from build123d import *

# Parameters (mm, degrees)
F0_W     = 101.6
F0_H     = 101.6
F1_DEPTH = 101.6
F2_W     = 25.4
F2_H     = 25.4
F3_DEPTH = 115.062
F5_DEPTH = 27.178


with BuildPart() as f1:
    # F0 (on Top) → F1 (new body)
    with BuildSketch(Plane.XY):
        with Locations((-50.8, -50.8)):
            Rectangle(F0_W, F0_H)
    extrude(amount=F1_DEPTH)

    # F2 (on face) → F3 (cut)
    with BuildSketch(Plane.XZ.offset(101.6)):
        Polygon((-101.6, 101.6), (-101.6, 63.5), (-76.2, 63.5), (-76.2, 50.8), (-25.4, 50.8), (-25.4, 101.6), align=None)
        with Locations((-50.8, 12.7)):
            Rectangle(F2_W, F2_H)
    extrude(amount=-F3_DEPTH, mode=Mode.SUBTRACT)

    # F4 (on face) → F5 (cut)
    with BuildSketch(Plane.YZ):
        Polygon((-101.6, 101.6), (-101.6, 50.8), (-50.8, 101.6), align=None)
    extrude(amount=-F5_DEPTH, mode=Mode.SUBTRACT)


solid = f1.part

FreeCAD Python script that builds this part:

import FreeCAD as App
import Part
import Sketcher
Q = App.Units.Quantity

doc = App.newDocument("Part")
body = doc.addObject("PartDesign::Body", "Body")

# Sketch on XY plane
sketch1 = doc.addObject("Sketcher::SketchObject", "Sketch")
body.addObject(sketch1)
sketch1.AttachmentSupport = (doc.XY_Plane, [""])
sketch1.MapMode = "FlatFace"
sketch1.addGeometry([
    Part.LineSegment(App.Vector(-102, 0, 0), App.Vector(-102, -102, 0)),
    Part.LineSegment(App.Vector(-102, -102, 0), App.Vector(0, -102, 0)),
    Part.LineSegment(App.Vector(0, -102, 0), App.Vector(0, 0, 0)),
    Part.LineSegment(App.Vector(0, 0, 0), App.Vector(-102, 0, 0)),
], False)
sketch1.addConstraint([
    Sketcher.Constraint("Coincident", 0, 2, 1, 1),
    Sketcher.Constraint("Coincident", 1, 2, 2, 1),
    Sketcher.Constraint("Coincident", 2, 2, 3, 1),
    Sketcher.Constraint("Coincident", 3, 2, 0, 1),
    Sketcher.Constraint("Vertical", 0),
    Sketcher.Constraint("Horizontal", 1),
    Sketcher.Constraint("Vertical", 2),
    Sketcher.Constraint("Horizontal", 3),
    Sketcher.Constraint("Coincident", 2, 2, -1, 1),
    Sketcher.Constraint("Equal", 3, 0),
    Sketcher.Constraint("DistanceX", 1, 1, 1, 2, Q("4 in")),
])
pad1 = doc.addObject("PartDesign::Pad", "Pad")
body.addObject(pad1)
pad1.Profile = sketch1
pad1.Length = Q("4 in")

# Sketch on XZ plane
sketch2 = doc.addObject("Sketcher::SketchObject", "Sketch001")
body.addObject(sketch2)
sketch2.AttachmentSupport = (doc.XZ_Plane, [""])
sketch2.MapMode = "FlatFace"
sketch2.AttachmentOffset = App.Placement(App.Vector(0, 0, 4 * 25.4), App.Rotation())
sketch2.addGeometry([
    Part.LineSegment(App.Vector(-102, 102, 0), App.Vector(-102, 64, 0)),  # 0
    Part.LineSegment(App.Vector(-102, 64, 0), App.Vector(-76, 64, 0)),  # 1
    Part.LineSegment(App.Vector(-76, 64, 0), App.Vector(-76, 51, 0)),  # 2
    Part.LineSegment(App.Vector(-76, 51, 0), App.Vector(-25, 51, 0)),  # 3
    Part.LineSegment(App.Vector(-25, 51, 0), App.Vector(-25, 102, 0)),  # 4
    Part.LineSegment(App.Vector(-25, 102, 0), App.Vector(-102, 102, 0)),  # 5
    Part.LineSegment(App.Vector(-64, 25, 0), App.Vector(-64, 0, 0)),  # 6
    Part.LineSegment(App.Vector(-64, 0, 0), App.Vector(-38, 0, 0)),  # 7
    Part.LineSegment(App.Vector(-38, 0, 0), App.Vector(-38, 25, 0)),  # 8
    Part.LineSegment(App.Vector(-38, 25, 0), App.Vector(-64, 25, 0)),  # 9
], False)
sketch2.addConstraint([
    Sketcher.Constraint("Coincident", 0, 2, 1, 1),
    Sketcher.Constraint("Coincident", 1, 2, 2, 1),
    Sketcher.Constraint("Coincident", 2, 2, 3, 1),
    Sketcher.Constraint("Coincident", 3, 2, 4, 1),
    Sketcher.Constraint("Coincident", 4, 2, 5, 1),
    Sketcher.Constraint("Coincident", 5, 2, 0, 1),
    Sketcher.Constraint("Coincident", 6, 2, 7, 1),
    Sketcher.Constraint("Coincident", 7, 2, 8, 1),
    Sketcher.Constraint("Coincident", 8, 2, 9, 1),
    Sketcher.Constraint("Coincident", 9, 2, 6, 1),
    Sketcher.Constraint("Vertical", 0),
    Sketcher.Constraint("Horizontal", 1),
    Sketcher.Constraint("Vertical", 2),
    Sketcher.Constraint("Horizontal", 3),
    Sketcher.Constraint("Vertical", 4),
    Sketcher.Constraint("Horizontal", 5),
    Sketcher.Constraint("Vertical", 6),
    Sketcher.Constraint("Horizontal", 7),
    Sketcher.Constraint("Vertical", 8),
    Sketcher.Constraint("Horizontal", 9),
    Sketcher.Constraint("PointOnObject", 6, 2, -1),
    Sketcher.Constraint("Equal", 1, 7),
    Sketcher.Constraint("Equal", 3, 4),
    Sketcher.Constraint("Equal", 9, 6),
    Sketcher.Constraint("DistanceX", 1, 1, 1, 2, Q("1 in")),
    Sketcher.Constraint("DistanceX", 3, 1, 3, 2, Q("2 in")),
    Sketcher.Constraint("DistanceY", 0, 2, 0, 1, Q("1.5 in")),
    Sketcher.Constraint("DistanceX", 0, 2, -1, 1, Q("4 in")),
    Sketcher.Constraint("DistanceY", -1, 1, 2, 2, Q("2 in")),
    Sketcher.Constraint("DistanceX", 6, 2, -1, 1, Q("2.5 in")),
])
pocket1 = doc.addObject("PartDesign::Pocket", "Pocket")
body.addObject(pocket1)
pocket1.Profile = sketch2
pocket1.Length = Q("4.53 in")

# Sketch on YZ plane
sketch3 = doc.addObject("Sketcher::SketchObject", "Sketch002")
body.addObject(sketch3)
sketch3.AttachmentSupport = (doc.YZ_Plane, [""])
sketch3.MapMode = "FlatFace"
sketch3.addGeometry([
    Part.LineSegment(App.Vector(-102, 102, 0), App.Vector(-102, 51, 0)),
    Part.LineSegment(App.Vector(-102, 51, 0), App.Vector(-51, 102, 0)),
    Part.LineSegment(App.Vector(-51, 102, 0), App.Vector(-102, 102, 0)),
], False)
sketch3.addConstraint([
    Sketcher.Constraint("Coincident", 0, 2, 1, 1),
    Sketcher.Constraint("Coincident", 1, 2, 2, 1),
    Sketcher.Constraint("Coincident", 2, 2, 0, 1),
    Sketcher.Constraint("Vertical", 0),
    Sketcher.Constraint("Horizontal", 2),
    Sketcher.Constraint("Equal", 2, 0),
    Sketcher.Constraint("DistanceX", 2, 2, 2, 1, Q("2 in")),
    Sketcher.Constraint("DistanceX", 0, 2, -1, 1, Q("4 in")),
    Sketcher.Constraint("DistanceY", -1, 1, 0, 2, Q("2 in")),
])
pocket2 = doc.addObject("PartDesign::Pocket", "Pocket001")
body.addObject(pocket2)
pocket2.Profile = sketch3
pocket2.Length = Q("1.07 in")

doc.recompute()
